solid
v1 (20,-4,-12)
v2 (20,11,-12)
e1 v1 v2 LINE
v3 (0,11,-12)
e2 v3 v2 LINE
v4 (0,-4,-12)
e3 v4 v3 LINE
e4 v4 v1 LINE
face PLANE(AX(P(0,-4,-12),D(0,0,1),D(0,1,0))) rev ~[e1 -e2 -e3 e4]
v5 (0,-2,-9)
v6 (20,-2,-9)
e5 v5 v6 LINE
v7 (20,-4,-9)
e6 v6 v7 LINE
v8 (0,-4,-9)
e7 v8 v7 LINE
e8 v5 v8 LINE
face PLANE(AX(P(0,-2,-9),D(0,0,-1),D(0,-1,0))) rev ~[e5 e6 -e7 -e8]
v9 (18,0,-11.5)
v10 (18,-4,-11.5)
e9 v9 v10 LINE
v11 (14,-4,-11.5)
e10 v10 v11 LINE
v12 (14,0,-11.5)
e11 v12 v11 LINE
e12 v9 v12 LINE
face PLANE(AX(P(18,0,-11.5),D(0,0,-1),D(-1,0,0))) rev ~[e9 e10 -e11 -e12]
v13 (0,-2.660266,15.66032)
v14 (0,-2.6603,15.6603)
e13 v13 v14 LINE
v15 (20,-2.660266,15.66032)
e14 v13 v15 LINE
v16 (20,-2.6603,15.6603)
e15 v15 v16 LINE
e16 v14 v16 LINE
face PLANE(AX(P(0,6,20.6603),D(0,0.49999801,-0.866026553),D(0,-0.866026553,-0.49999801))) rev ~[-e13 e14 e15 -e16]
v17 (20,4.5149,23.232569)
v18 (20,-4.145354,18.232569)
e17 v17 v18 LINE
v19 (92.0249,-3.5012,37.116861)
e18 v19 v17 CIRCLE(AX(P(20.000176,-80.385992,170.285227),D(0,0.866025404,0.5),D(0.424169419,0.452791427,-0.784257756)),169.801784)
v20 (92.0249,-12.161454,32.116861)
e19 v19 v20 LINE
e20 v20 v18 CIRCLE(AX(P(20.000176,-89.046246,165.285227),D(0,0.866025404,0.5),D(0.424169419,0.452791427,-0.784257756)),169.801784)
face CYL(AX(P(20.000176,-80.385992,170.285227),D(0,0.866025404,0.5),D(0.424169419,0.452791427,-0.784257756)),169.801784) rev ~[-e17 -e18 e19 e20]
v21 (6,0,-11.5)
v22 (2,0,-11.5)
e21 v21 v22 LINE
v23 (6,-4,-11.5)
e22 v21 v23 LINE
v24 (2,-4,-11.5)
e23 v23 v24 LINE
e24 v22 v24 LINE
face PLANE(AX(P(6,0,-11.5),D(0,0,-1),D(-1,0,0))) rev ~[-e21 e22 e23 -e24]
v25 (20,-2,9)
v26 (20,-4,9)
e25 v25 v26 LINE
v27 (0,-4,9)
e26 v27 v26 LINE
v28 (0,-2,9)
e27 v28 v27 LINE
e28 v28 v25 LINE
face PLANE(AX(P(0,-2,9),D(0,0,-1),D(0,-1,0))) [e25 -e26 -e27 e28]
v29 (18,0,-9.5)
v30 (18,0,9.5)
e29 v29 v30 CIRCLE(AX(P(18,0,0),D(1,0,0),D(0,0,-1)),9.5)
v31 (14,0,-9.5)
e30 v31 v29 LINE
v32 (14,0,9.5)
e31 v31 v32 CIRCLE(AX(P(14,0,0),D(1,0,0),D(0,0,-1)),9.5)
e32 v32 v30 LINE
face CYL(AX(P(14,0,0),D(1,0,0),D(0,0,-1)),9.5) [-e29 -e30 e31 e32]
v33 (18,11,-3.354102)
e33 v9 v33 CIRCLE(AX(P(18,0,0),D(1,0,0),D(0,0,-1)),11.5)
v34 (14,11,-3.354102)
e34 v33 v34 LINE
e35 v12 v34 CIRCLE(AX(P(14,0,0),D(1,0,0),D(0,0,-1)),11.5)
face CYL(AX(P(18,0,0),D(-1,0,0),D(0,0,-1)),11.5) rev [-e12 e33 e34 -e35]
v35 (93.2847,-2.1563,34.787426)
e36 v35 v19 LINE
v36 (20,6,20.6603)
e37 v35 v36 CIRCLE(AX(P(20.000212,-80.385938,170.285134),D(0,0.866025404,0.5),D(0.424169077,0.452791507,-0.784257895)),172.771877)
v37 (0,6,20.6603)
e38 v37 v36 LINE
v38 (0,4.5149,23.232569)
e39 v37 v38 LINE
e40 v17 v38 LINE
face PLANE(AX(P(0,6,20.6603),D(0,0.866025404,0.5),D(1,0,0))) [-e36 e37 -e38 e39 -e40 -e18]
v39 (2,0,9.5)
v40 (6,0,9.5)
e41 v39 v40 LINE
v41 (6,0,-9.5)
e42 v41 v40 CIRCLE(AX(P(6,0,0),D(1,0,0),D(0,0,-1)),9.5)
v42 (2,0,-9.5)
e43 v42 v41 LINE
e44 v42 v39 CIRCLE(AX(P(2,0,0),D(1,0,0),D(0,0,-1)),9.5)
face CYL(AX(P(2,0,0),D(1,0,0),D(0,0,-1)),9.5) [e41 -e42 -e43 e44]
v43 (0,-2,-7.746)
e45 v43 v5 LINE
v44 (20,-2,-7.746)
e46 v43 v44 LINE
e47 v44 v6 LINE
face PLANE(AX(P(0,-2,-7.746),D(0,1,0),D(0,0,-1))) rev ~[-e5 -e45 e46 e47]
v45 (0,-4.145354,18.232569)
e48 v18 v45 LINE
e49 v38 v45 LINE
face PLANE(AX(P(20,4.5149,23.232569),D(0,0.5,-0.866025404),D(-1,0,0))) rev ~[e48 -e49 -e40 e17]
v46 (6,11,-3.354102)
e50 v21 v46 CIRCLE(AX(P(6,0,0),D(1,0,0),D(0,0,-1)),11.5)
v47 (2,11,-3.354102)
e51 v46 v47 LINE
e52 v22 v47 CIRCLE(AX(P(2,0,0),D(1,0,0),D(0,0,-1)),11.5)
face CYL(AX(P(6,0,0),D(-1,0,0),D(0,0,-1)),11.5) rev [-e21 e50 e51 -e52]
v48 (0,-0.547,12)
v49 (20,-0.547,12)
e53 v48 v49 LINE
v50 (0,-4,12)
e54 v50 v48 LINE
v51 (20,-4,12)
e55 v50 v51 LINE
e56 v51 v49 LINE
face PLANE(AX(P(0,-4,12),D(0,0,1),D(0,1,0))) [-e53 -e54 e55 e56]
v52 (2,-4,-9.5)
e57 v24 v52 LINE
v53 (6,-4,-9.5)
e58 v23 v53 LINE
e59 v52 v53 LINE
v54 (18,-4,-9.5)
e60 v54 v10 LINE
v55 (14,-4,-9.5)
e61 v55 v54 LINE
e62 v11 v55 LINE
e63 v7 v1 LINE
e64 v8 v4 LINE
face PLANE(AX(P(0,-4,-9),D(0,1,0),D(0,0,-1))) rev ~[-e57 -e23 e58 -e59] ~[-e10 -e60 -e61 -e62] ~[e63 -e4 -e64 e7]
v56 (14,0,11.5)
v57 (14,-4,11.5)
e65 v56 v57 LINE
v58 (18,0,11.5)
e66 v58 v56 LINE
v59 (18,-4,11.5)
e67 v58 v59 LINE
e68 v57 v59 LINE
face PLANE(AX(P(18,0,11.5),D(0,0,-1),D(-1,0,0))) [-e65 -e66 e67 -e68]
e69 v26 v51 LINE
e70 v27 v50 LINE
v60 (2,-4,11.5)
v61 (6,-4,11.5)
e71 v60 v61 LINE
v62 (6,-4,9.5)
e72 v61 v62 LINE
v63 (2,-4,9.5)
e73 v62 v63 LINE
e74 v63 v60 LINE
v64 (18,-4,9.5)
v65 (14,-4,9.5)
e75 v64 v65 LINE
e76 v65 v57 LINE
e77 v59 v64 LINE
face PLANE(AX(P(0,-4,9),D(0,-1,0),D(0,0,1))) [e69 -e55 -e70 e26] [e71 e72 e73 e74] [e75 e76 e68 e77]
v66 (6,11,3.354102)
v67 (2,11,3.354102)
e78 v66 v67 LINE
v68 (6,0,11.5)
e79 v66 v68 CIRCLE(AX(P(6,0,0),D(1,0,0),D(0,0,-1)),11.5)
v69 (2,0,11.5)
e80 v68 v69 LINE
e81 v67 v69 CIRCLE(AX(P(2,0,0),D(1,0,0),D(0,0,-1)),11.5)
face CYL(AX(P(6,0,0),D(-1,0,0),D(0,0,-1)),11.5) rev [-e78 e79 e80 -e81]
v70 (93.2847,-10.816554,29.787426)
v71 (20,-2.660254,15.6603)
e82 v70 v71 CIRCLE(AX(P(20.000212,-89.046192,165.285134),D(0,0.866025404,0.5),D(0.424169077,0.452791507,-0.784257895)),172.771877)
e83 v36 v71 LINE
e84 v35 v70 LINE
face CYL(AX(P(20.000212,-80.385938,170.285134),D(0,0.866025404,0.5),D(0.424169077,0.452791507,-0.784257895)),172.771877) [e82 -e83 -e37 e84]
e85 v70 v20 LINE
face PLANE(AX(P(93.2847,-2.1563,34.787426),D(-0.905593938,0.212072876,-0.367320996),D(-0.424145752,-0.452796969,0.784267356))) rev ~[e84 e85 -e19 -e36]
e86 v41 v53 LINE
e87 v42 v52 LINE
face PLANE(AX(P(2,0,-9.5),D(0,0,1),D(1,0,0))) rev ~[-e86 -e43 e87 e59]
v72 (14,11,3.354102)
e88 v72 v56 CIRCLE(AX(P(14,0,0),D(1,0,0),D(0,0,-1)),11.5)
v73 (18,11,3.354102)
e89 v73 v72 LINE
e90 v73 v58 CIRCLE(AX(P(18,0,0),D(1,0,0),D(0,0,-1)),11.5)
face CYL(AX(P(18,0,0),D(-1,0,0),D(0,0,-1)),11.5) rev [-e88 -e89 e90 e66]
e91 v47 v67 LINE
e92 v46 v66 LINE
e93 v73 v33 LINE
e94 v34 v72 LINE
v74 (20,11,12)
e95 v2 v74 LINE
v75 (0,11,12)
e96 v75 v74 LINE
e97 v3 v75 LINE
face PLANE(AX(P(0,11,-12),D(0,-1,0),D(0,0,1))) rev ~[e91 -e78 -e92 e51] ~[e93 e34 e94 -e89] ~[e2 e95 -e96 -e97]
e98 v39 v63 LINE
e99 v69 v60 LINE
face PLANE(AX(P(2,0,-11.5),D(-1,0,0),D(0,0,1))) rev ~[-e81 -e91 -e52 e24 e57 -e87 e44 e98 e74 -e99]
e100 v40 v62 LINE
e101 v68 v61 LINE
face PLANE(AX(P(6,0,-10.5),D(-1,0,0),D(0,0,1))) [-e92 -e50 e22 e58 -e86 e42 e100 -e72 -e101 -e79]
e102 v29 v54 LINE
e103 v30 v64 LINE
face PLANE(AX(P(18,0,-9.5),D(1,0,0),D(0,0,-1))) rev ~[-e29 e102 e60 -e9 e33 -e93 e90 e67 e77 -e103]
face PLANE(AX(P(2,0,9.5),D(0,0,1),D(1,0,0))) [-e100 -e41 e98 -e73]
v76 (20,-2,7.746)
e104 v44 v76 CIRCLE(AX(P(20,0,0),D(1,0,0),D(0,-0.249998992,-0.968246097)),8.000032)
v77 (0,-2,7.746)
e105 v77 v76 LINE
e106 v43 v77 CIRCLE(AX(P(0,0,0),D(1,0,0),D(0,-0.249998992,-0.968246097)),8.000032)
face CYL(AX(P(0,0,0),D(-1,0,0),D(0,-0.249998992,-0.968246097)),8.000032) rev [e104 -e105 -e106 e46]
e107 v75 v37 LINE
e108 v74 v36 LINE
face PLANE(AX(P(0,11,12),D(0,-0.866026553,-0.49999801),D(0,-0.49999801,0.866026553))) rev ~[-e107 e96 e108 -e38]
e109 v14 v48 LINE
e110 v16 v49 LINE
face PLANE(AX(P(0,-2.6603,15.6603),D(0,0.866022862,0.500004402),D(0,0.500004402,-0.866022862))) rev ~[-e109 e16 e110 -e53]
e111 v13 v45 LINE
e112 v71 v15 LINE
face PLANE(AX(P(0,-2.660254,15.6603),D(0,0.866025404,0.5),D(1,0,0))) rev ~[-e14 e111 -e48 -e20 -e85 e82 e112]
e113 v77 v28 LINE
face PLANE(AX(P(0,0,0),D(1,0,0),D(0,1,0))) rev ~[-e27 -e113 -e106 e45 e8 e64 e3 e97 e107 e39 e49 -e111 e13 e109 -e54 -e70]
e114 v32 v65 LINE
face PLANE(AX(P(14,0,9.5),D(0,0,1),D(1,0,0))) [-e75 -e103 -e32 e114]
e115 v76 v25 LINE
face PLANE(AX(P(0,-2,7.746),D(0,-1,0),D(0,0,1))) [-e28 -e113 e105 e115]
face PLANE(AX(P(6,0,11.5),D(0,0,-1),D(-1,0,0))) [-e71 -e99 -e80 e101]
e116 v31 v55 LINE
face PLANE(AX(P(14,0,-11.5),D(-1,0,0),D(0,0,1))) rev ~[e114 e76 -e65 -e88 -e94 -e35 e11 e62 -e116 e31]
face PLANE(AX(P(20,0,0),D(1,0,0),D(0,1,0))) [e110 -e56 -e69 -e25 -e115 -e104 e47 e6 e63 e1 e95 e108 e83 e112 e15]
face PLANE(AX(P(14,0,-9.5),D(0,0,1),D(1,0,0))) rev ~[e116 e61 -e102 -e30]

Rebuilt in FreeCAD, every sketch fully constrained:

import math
import FreeCAD as App
import Part
import Sketcher
Q = App.Units.Quantity

doc = App.newDocument("Part")
body = doc.addObject("PartDesign::Body", "Body")

# Sketch on YZ plane
sketch1 = body.newObject("Sketcher::SketchObject", "Sketch")
sketch1.AttachmentSupport = (doc.getObject("YZ_Plane"), [""])
sketch1.MapMode = "FlatFace"
sketch1.addGeometry(Part.ArcOfCircle(Part.Circle(App.Vector(0, 0, 0), App.Vector(0, 0, 1), 8), math.radians(-104), math.radians(104)), False)
sketch1.addGeometry(Part.LineSegment(App.Vector(-2, -7.7, 0), App.Vector(-2, -9, 0)), False)
sketch1.addGeometry(Part.LineSegment(App.Vector(-2, -9, 0), App.Vector(-4, -9, 0)), False)
sketch1.addGeometry(Part.LineSegment(App.Vector(-4, -9, 0), App.Vector(-4, -12, 0)), False)
sketch1.addGeometry(Part.LineSegment(App.Vector(-4, -12, 0), App.Vector(11, -12, 0)), False)
sketch1.addGeometry(Part.LineSegment(App.Vector(11, -12, 0), App.Vector(11, 12, 0)), False)
sketch1.addGeometry(Part.LineSegment(App.Vector(11, 12, 0), App.Vector(6, 20.7, 0)), False)
sketch1.addGeometry(Part.LineSegment(App.Vector(6, 20.7, 0), App.Vector(-2.7, 15.7, 0)), False)
sketch1.addGeometry(Part.LineSegment(App.Vector(-2.7, 15.7, 0), App.Vector(-0.5, 12, 0)), False)
sketch1.addGeometry(Part.LineSegment(App.Vector(-0.5, 12, 0), App.Vector(-4, 12, 0)), False)
sketch1.addGeometry(Part.LineSegment(App.Vector(-4, 12, 0), App.Vector(-4, 9, 0)), False)
sketch1.addGeometry(Part.LineSegment(App.Vector(-4, 9, 0), App.Vector(-2, 9, 0)), False)
sketch1.addGeometry(Part.LineSegment(App.Vector(-2, 9, 0), App.Vector(-2, 7.7, 0)), False)
sketch1.addConstraint(Sketcher.Constraint("Coincident", 0, 1, 1, 1))
sketch1.addConstraint(Sketcher.Constraint("Coincident", 1, 2, 2, 1))
sketch1.addConstraint(Sketcher.Constraint("Coincident", 2, 2, 3, 1))
sketch1.addConstraint(Sketcher.Constraint("Coincident", 3, 2, 4, 1))
sketch1.addConstraint(Sketcher.Constraint("Coincident", 4, 2, 5, 1))
sketch1.addConstraint(Sketcher.Constraint("Coincident", 5, 2, 6, 1))
sketch1.addConstraint(Sketcher.Constraint("Coincident", 6, 2, 7, 1))
sketch1.addConstraint(Sketcher.Constraint("Coincident", 7, 2, 8, 1))
sketch1.addConstraint(Sketcher.Constraint("Coincident", 8, 2, 9, 1))
sketch1.addConstraint(Sketcher.Constraint("Coincident", 9, 2, 10, 1))
sketch1.addConstraint(Sketcher.Constraint("Coincident", 10, 2, 11, 1))
sketch1.addConstraint(Sketcher.Constraint("Coincident", 11, 2, 12, 1))
sketch1.addConstraint(Sketcher.Constraint("Coincident", 12, 2, 0, 2))
sketch1.addConstraint(Sketcher.Constraint("Vertical", 1))
sketch1.addConstraint(Sketcher.Constraint("Horizontal", 2))
sketch1.addConstraint(Sketcher.Constraint("Vertical", 3))
sketch1.addConstraint(Sketcher.Constraint("Horizontal", 4))
sketch1.addConstraint(Sketcher.Constraint("Vertical", 5))
sketch1.addConstraint(Sketcher.Constraint("Horizontal", 9))
sketch1.addConstraint(Sketcher.Constraint("Vertical", 10))
sketch1.addConstraint(Sketcher.Constraint("Horizontal", 11))
sketch1.addConstraint(Sketcher.Constraint("Vertical", 12))
sketch1.addConstraint(Sketcher.Constraint("Coincident", 0, 3, -1, 1))
sketch1.addConstraint(Sketcher.Constraint("Symmetric", 3, 2, 9, 2, -1))
sketch1.addConstraint(Sketcher.Constraint("Symmetric", 1, 2, 11, 2, -1))
sketch1.addConstraint(Sketcher.Constraint("Perpendicular", 6, 7))
sketch1.addConstraint(Sketcher.Constraint("Perpendicular", 7, 8))
sketch1.addConstraint(Sketcher.Constraint("Horizontal", 5, 2, 8, 2))
sketch1.addConstraint(Sketcher.Constraint("Equal", 6, 7))
sketch1.addConstraint(Sketcher.Constraint("Radius", 0, 8.0))
sketch1.addConstraint(Sketcher.Constraint("DistanceX", 2, 2, 2, 1, 2.0))
sketch1.addConstraint(Sketcher.Constraint("DistanceX", 4, 1, 4, 2, 15.0))
sketch1.addConstraint(Sketcher.Constraint("DistanceY", 3, 2, 3, 1, 3.0))
sketch1.addConstraint(Sketcher.Constraint("Angle", 6, Q("119.9999 deg")))
sketch1.addConstraint(Sketcher.Constraint("Distance", 6, 10.0))
sketch1.addConstraint(Sketcher.Constraint("DistanceX", 0, 1, -1, 1, 2.0))
sketch1.addConstraint(Sketcher.Constraint("DistanceY", 1, 2, -1, 1, 9.0))
pad1 = body.newObject("PartDesign::Pad", "Pad")
pad1.Profile = sketch1
pad1.Length = 20

# Sketch on XZ plane
sketch2 = body.newObject("Sketcher::SketchObject", "Sketch001")
sketch2.AttachmentSupport = (doc.getObject("XZ_Plane"), [""])
sketch2.MapMode = "FlatFace"
sketch2.addGeometry(Part.LineSegment(App.Vector(6, -9.5, 0), App.Vector(6, -11.5, 0)), False)
sketch2.addGeometry(Part.LineSegment(App.Vector(6, -11.5, 0), App.Vector(2, -11.5, 0)), False)
sketch2.addGeometry(Part.LineSegment(App.Vector(2, -11.5, 0), App.Vector(2, -9.5, 0)), False)
sketch2.addGeometry(Part.LineSegment(App.Vector(2, -9.5, 0), App.Vector(6, -9.5, 0)), False)
sketch2.addGeometry(Part.LineSegment(App.Vector(14, -11.5, 0), App.Vector(14, -9.5, 0)), False)
sketch2.addGeometry(Part.LineSegment(App.Vector(14, -9.5, 0), App.Vector(18, -9.5, 0)), False)
sketch2.addGeometry(Part.LineSegment(App.Vector(18, -9.5, 0), App.Vector(18, -11.5, 0)), False)
sketch2.addGeometry(Part.LineSegment(App.Vector(18, -11.5, 0), App.Vector(14, -11.5, 0)), False)
sketch2.addConstraint(Sketcher.Constraint("Coincident", 0, 2, 1, 1))
sketch2.addConstraint(Sketcher.Constraint("Coincident", 1, 2, 2, 1))
sketch2.addConstraint(Sketcher.Constraint("Coincident", 2, 2, 3, 1))
sketch2.addConstraint(Sketcher.Constraint("Coincident", 3, 2, 0, 1))
sketch2.addConstraint(Sketcher.Constraint("Coincident", 4, 2, 5, 1))
sketch2.addConstraint(Sketcher.Constraint("Coincident", 5, 2, 6, 1))
sketch2.addConstraint(Sketcher.Constraint("Coincident", 6, 2, 7, 1))
sketch2.addConstraint(Sketcher.Constraint("Coincident", 7, 2, 4, 1))
sketch2.addConstraint(Sketcher.Constraint("Vertical", 0))
sketch2.addConstraint(Sketcher.Constraint("Horizontal", 1))
sketch2.addConstraint(Sketcher.Constraint("Vertical", 2))
sketch2.addConstraint(Sketcher.Constraint("Horizontal", 3))
sketch2.addConstraint(Sketcher.Constraint("Vertical", 4))
sketch2.addConstraint(Sketcher.Constraint("Horizontal", 5))
sketch2.addConstraint(Sketcher.Constraint("Vertical", 6))
sketch2.addConstraint(Sketcher.Constraint("Horizontal", 7))
sketch2.addConstraint(Sketcher.Constraint("Horizontal", 3, 2, 4, 2))
sketch2.addConstraint(Sketcher.Constraint("Horizontal", 1, 2, 6, 2))
sketch2.addConstraint(Sketcher.Constraint("Equal", 3, 5))
sketch2.addConstraint(Sketcher.Constraint("DistanceX", 1, 2, 1, 1, 4.0))
sketch2.addConstraint(Sketcher.Constraint("DistanceY", 0, 2, 0, 1, 2.0))
sketch2.addConstraint(Sketcher.Constraint("DistanceX", -1, 1, 1, 2, 2.0))
sketch2.addConstraint(Sketcher.Constraint("DistanceX", -1, 1, 4, 2, 14.0))
sketch2.addConstraint(Sketcher.Constraint("DistanceY", 0, 2, -1, 1, 11.5))
groove = body.newObject("PartDesign::Groove", "Groove")
groove.Profile = sketch2
groove.ReferenceAxis = (sketch2, ["H_Axis"])
groove.Angle = 180

# Sketch on XZ plane
sketch3 = body.newObject("Sketcher::SketchObject", "Sketch002")
sketch3.AttachmentSupport = (doc.getObject("XZ_Plane"), [""])
sketch3.MapMode = "FlatFace"
sketch3.addGeometry(Part.LineSegment(App.Vector(14, 9.5, 0), App.Vector(14, 11.5, 0)), False)
sketch3.addGeometry(Part.LineSegment(App.Vector(14, 11.5, 0), App.Vector(18, 11.5, 0)), False)
sketch3.addGeometry(Part.LineSegment(App.Vector(18, 11.5, 0), App.Vector(18, 9.5, 0)), False)
sketch3.addGeometry(Part.LineSegment(App.Vector(18, 9.5, 0), App.Vector(14, 9.5, 0)), False)
sketch3.addGeometry(Part.LineSegment(App.Vector(6, 11.5, 0), App.Vector(6, 9.5, 0)), False)
sketch3.addGeometry(Part.LineSegment(App.Vector(6, 9.5, 0), App.Vector(2, 9.5, 0)), False)
sketch3.addGeometry(Part.LineSegment(App.Vector(2, 9.5, 0), App.Vector(2, 11.5, 0)), False)
sketch3.addGeometry(Part.LineSegment(App.Vector(2, 11.5, 0), App.Vector(6, 11.5, 0)), False)
sketch3.addGeometry(Part.LineSegment(App.Vector(6, -9.5, 0), App.Vector(6, -11.5, 0)), False)
sketch3.addGeometry(Part.LineSegment(App.Vector(6, -11.5, 0), App.Vector(2, -11.5, 0)), False)
sketch3.addGeometry(Part.LineSegment(App.Vector(2, -11.5, 0), App.Vector(2, -9.5, 0)), False)
sketch3.addGeometry(Part.LineSegment(App.Vector(2, -9.5, 0), App.Vector(6, -9.5, 0)), False)
sketch3.addGeometry(Part.LineSegment(App.Vector(14, -11.5, 0), App.Vector(14, -9.5, 0)), False)
sketch3.addGeometry(Part.LineSegment(App.Vector(14, -9.5, 0), App.Vector(18, -9.5, 0)), False)
sketch3.addGeometry(Part.LineSegment(App.Vector(18, -9.5, 0), App.Vector(18, -11.5, 0)), False)
sketch3.addGeometry(Part.LineSegment(App.Vector(18, -11.5, 0), App.Vector(14, -11.5, 0)), False)
sketch3.addConstraint(Sketcher.Constraint("Coincident", 0, 2, 1, 1))
sketch3.addConstraint(Sketcher.Constraint("Coincident", 1, 2, 2, 1))
sketch3.addConstraint(Sketcher.Constraint("Coincident", 2, 2, 3, 1))
sketch3.addConstraint(Sketcher.Constraint("Coincident", 3, 2, 0, 1))
sketch3.addConstraint(Sketcher.Constraint("Coincident", 4, 2, 5, 1))
sketch3.addConstraint(Sketcher.Constraint("Coincident", 5, 2, 6, 1))
sketch3.addConstraint(Sketcher.Constraint("Coincident", 6, 2, 7, 1))
sketch3.addConstraint(Sketcher.Constraint("Coincident", 7, 2, 4, 1))
sketch3.addConstraint(Sketcher.Constraint("Coincident", 8, 2, 9, 1))
sketch3.addConstraint(Sketcher.Constraint("Coincident", 9, 2, 10, 1))
sketch3.addConstraint(Sketcher.Constraint("Coincident", 10, 2, 11, 1))
sketch3.addConstraint(Sketcher.Constraint("Coincident", 11, 2, 8, 1))
sketch3.addConstraint(Sketcher.Constraint("Coincident", 12, 2, 13, 1))
sketch3.addConstraint(Sketcher.Constraint("Coincident", 13, 2, 14, 1))
sketch3.addConstraint(Sketcher.Constraint("Coincident", 14, 2, 15, 1))
sketch3.addConstraint(Sketcher.Constraint("Coincident", 15, 2, 12, 1))
sketch3.addConstraint(Sketcher.Constraint("Vertical", 0))
sketch3.addConstraint(Sketcher.Constraint("Horizontal", 1))
sketch3.addConstraint(Sketcher.Constraint("Vertical", 2))
sketch3.addConstraint(Sketcher.Constraint("Horizontal", 3))
sketch3.addConstraint(Sketcher.Constraint("Vertical", 4))
sketch3.addConstraint(Sketcher.Constraint("Horizontal", 5))
sketch3.addConstraint(Sketcher.Constraint("Vertical", 6))
sketch3.addConstraint(Sketcher.Constraint("Horizontal", 7))
sketch3.addConstraint(Sketcher.Constraint("Vertical", 8))
sketch3.addConstraint(Sketcher.Constraint("Horizontal", 9))
sketch3.addConstraint(Sketcher.Constraint("Vertical", 10))
sketch3.addConstraint(Sketcher.Constraint("Horizontal", 11))
sketch3.addConstraint(Sketcher.Constraint("Vertical", 12))
sketch3.addConstraint(Sketcher.Constraint("Horizontal", 13))
sketch3.addConstraint(Sketcher.Constraint("Vertical", 14))
sketch3.addConstraint(Sketcher.Constraint("Horizontal", 15))
sketch3.addConstraint(Sketcher.Constraint("Symmetric", 7, 2, 8, 2, -1))
sketch3.addConstraint(Sketcher.Constraint("Symmetric", 5, 2, 10, 2, -1))
sketch3.addConstraint(Sketcher.Constraint("Symmetric", 3, 2, 12, 2, -1))
sketch3.addConstraint(Sketcher.Constraint("Symmetric", 1, 2, 14, 2, -1))
sketch3.addConstraint(Sketcher.Constraint("Horizontal", 3, 2, 4, 2))
sketch3.addConstraint(Sketcher.Constraint("Horizontal", 1, 2, 6, 2))
sketch3.addConstraint(Sketcher.Constraint("Equal", 3, 5))
sketch3.addConstraint(Sketcher.Constraint("DistanceX", 1, 1, 1, 2, 4.0))
sketch3.addConstraint(Sketcher.Constraint("DistanceY", 0, 1, 0, 2, 2.0))
sketch3.addConstraint(Sketcher.Constraint("DistanceX", -1, 1, 5, 2, 2.0))
sketch3.addConstraint(Sketcher.Constraint("DistanceX", -1, 1, 0, 2, 14.0))
sketch3.addConstraint(Sketcher.Constraint("DistanceY", 8, 2, 4, 2, 21.0))
pocket1 = body.newObject("PartDesign::Pocket", "Pocket")
pocket1.Profile = sketch3
pocket1.Length = 20
pocket1.Reversed = True

# Sketch on an angled plane
sketch4 = body.newObject("Sketcher::SketchObject", "Sketch003")
sketch4.Placement = App.Placement(App.Vector(0, 6, 20.6603), App.Rotation(App.Vector(1, 0, 0), App.Vector(0, 0.5, -0.866025404), App.Vector(0, 0.866025404, 0.5), "ZXY"))
sketch4.addGeometry(Part.LineSegment(App.Vector(20, 0, 0), App.Vector(0, 0, 0)), False)
sketch4.addGeometry(Part.LineSegment(App.Vector(0, 0, 0), App.Vector(0, -3, 0)), False)
sketch4.addGeometry(Part.LineSegment(App.Vector(0, -3, 0), App.Vector(20, -3, 0)), False)
sketch4.addGeometry(Part.ArcOfCircle(Part.Circle(App.Vector(20, -172.8, 0), App.Vector(0, 0, 1), 169.8), math.radians(65), math.radians(90)), False)
sketch4.addGeometry(Part.LineSegment(App.Vector(92, -19, 0), App.Vector(93.3, -16.3, 0)), False)
sketch4.addGeometry(Part.ArcOfCircle(Part.Circle(App.Vector(20, -172.8, 0), App.Vector(0, 0, 1), 172.8), math.radians(65), math.radians(90)), False)
sketch4.addConstraint(Sketcher.Constraint("Coincident", 0, 2, 1, 1))
sketch4.addConstraint(Sketcher.Constraint("Coincident", 1, 2, 2, 1))
sketch4.addConstraint(Sketcher.Constraint("Tangent", 2, 2, 3, 2))
sketch4.addConstraint(Sketcher.Constraint("Coincident", 3, 1, 4, 1))
sketch4.addConstraint(Sketcher.Constraint("Coincident", 4, 2, 5, 1))
sketch4.addConstraint(Sketcher.Constraint("Tangent", 5, 2, 0, 1))
sketch4.addConstraint(Sketcher.Constraint("Horizontal", 0))
sketch4.addConstraint(Sketcher.Constraint("Vertical", 1))
sketch4.addConstraint(Sketcher.Constraint("Horizontal", 2))
sketch4.addConstraint(Sketcher.Constraint("Coincident", 0, 2, -1, 1))
sketch4.addConstraint(Sketcher.Constraint("Coincident", 5, 3, 3, 3))
sketch4.addConstraint(Sketcher.Constraint("DistanceX", 0, 2, 0, 1, 20.0))
sketch4.addConstraint(Sketcher.Constraint("Radius", 3, 169.8023))
sketch4.addConstraint(Sketcher.Constraint("Radius", 5, 172.7725))
sketch4.addConstraint(Sketcher.Constraint("DistanceY", 3, 3, 3, 1, 153.77))
sketch4.addConstraint(Sketcher.Constraint("DistanceY", 3, 3, 4, 2, 156.46))
pad2 = body.newObject("PartDesign::Pad", "Pad001")
pad2.Profile = sketch4
pad2.Length = 10
pad2.Reversed = True

doc.recompute()
